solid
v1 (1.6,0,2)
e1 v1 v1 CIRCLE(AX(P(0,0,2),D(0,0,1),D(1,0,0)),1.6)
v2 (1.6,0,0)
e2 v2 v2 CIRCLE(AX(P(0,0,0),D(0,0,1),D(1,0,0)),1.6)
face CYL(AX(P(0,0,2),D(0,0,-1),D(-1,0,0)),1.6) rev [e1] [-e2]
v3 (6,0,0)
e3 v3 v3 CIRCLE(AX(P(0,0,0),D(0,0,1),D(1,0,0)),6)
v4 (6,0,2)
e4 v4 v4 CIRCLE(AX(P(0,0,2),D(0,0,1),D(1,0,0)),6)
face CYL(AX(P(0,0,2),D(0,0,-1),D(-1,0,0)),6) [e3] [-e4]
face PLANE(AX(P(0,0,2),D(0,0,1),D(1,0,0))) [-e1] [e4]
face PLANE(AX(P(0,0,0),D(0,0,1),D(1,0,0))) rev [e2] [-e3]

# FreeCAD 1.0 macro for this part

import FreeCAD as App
import Part
import Sketcher

doc = App.newDocument("Part")
body = doc.addObject("PartDesign::Body", "Body")

sketch1 = body.newObject("Sketcher::SketchObject", "Sketch")
sketch1.AttachmentSupport = (doc.getObject("XY_Plane"), [""])
sketch1.MapMode = "FlatFace"
sketch1.addGeometry([
    Part.Circle(App.Vector(0, 0, 0), App.Vector(0, 0, 1), 6),
    Part.Circle(App.Vector(0, 0, 0), App.Vector(0, 0, 1), 1.6),
], False)
sketch1.addConstraint([
    Sketcher.Constraint("Coincident", 0, 3, -1, 1),
    Sketcher.Constraint("Coincident", 1, 3, -1, 1),
    Sketcher.Constraint("Diameter", 0, 12.0),
    Sketcher.Constraint("Diameter", 1, 3.2),
])
pad1 = body.newObject("PartDesign::Pad", "Pad")
pad1.Profile = sketch1
pad1.Length = 2

doc.recompute()
